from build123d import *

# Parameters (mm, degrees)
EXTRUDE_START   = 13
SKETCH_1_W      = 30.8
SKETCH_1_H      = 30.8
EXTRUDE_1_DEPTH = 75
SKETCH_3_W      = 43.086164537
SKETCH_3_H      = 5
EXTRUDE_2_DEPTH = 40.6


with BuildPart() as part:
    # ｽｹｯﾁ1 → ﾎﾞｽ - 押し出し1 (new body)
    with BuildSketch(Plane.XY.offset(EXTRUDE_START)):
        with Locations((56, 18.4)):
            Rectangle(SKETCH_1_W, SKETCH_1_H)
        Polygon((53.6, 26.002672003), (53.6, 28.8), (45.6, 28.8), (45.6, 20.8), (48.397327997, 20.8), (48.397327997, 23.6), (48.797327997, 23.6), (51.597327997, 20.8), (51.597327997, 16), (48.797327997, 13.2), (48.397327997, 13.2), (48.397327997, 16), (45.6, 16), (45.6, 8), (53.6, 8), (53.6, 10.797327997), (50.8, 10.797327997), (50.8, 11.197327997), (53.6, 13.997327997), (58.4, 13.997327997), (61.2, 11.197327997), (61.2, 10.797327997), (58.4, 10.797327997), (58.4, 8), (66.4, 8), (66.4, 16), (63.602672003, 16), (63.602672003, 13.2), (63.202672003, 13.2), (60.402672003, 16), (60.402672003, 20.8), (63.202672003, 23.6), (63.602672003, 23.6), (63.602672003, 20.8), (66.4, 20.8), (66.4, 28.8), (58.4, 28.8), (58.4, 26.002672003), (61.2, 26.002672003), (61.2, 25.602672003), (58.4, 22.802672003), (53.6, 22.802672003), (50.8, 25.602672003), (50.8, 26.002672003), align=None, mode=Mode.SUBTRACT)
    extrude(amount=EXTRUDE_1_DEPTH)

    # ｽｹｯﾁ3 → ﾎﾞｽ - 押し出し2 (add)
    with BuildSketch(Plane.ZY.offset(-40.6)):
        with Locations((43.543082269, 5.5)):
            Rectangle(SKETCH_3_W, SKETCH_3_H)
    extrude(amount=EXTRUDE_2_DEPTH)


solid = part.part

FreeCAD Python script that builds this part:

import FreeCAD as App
import Part
import Sketcher
Q = App.Units.Quantity

doc = App.newDocument("Part")
body = doc.addObject("PartDesign::Body", "Body")

# Sketch on XY plane
sketch1 = doc.addObject("Sketcher::SketchObject", "Sketch")
body.addObject(sketch1)
sketch1.AttachmentSupport = (doc.XY_Plane, [""])
sketch1.MapMode = "FlatFace"
sketch1.AttachmentOffset = App.Placement(App.Vector(0, 0, 13), App.Rotation())
sketch1.addGeometry(Part.LineSegment(App.Vector(40.6, 33.8, 0), App.Vector(40.6, 3, 0)), False)
sketch1.addGeometry(Part.LineSegment(App.Vector(40.6, 3, 0), App.Vector(71.4, 3, 0)), False)
sketch1.addGeometry(Part.LineSegment(App.Vector(71.4, 3, 0), App.Vector(71.4, 33.8, 0)), False)
sketch1.addGeometry(Part.LineSegment(App.Vector(71.4, 33.8, 0), App.Vector(40.6, 33.8, 0)), False)
sketch1.addGeometry(Part.LineSegment(App.Vector(53.6, 28.8, 0), App.Vector(53.6, 26.002672, 0)), False)
sketch1.addGeometry(Part.LineSegment(App.Vector(53.6, 26.002672, 0), App.Vector(50.8, 26.002672, 0)), False)
sketch1.addGeometry(Part.LineSegment(App.Vector(50.8, 26.002672, 0), App.Vector(50.8, 25.602672, 0)), False)
sketch1.addGeometry(Part.LineSegment(App.Vector(50.8, 25.602672, 0), App.Vector(53.6, 22.802672, 0)), False)
sketch1.addGeometry(Part.LineSegment(App.Vector(53.6, 22.802672, 0), App.Vector(58.4, 22.802672, 0)), False)
sketch1.addGeometry(Part.LineSegment(App.Vector(58.4, 22.802672, 0), App.Vector(61.2, 25.602672, 0)), False)
sketch1.addGeometry(Part.LineSegment(App.Vector(61.2, 25.602672, 0), App.Vector(61.2, 26.002672, 0)), False)
sketch1.addGeometry(Part.LineSegment(App.Vector(61.2, 26.002672, 0), App.Vector(58.4, 26.002672, 0)), False)
sketch1.addGeometry(Part.LineSegment(App.Vector(58.4, 26.002672, 0), App.Vector(58.4, 28.8, 0)), False)
sketch1.addGeometry(Part.LineSegment(App.Vector(58.4, 28.8, 0), App.Vector(66.4, 28.8, 0)), False)
sketch1.addGeometry(Part.LineSegment(App.Vector(66.4, 28.8, 0), App.Vector(66.4, 20.8, 0)), False)
sketch1.addGeometry(Part.LineSegment(App.Vector(66.4, 20.8, 0), App.Vector(63.602672, 20.8, 0)), False)
sketch1.addGeometry(Part.LineSegment(App.Vector(63.602672, 20.8, 0), App.Vector(63.602672, 23.6, 0)), False)
sketch1.addGeometry(Part.LineSegment(App.Vector(63.602672, 23.6, 0), App.Vector(63.202672, 23.6, 0)), False)
sketch1.addGeometry(Part.LineSegment(App.Vector(63.202672, 23.6, 0), App.Vector(60.402672, 20.8, 0)), False)
sketch1.addGeometry(Part.LineSegment(App.Vector(60.402672, 20.8, 0), App.Vector(60.402672, 16, 0)), False)
sketch1.addGeometry(Part.LineSegment(App.Vector(60.402672, 16, 0), App.Vector(63.202672, 13.2, 0)), False)
sketch1.addGeometry(Part.LineSegment(App.Vector(63.202672, 13.2, 0), App.Vector(63.602672, 13.2, 0)), False)
sketch1.addGeometry(Part.LineSegment(App.Vector(63.602672, 13.2, 0), App.Vector(63.602672, 16, 0)), False)
sketch1.addGeometry(Part.LineSegment(App.Vector(63.602672, 16, 0), App.Vector(66.4, 16, 0)), False)
sketch1.addGeometry(Part.LineSegment(App.Vector(66.4, 16, 0), App.Vector(66.4, 8, 0)), False)
sketch1.addGeometry(Part.LineSegment(App.Vector(66.4, 8, 0), App.Vector(58.4, 8, 0)), False)
sketch1.addGeometry(Part.LineSegment(App.Vector(58.4, 8, 0), App.Vector(58.4, 10.797328, 0)), False)
sketch1.addGeometry(Part.LineSegment(App.Vector(58.4, 10.797328, 0), App.Vector(61.2, 10.797328, 0)), False)
sketch1.addGeometry(Part.LineSegment(App.Vector(61.2, 10.797328, 0), App.Vector(61.2, 11.197328, 0)), False)
sketch1.addGeometry(Part.LineSegment(App.Vector(61.2, 11.197328, 0), App.Vector(58.4, 13.997328, 0)), False)
sketch1.addGeometry(Part.LineSegment(App.Vector(58.4, 13.997328, 0), App.Vector(53.6, 13.997328, 0)), False)
sketch1.addGeometry(Part.LineSegment(App.Vector(53.6, 13.997328, 0), App.Vector(50.8, 11.197328, 0)), False)
sketch1.addGeometry(Part.LineSegment(App.Vector(50.8, 11.197328, 0), App.Vector(50.8, 10.797328, 0)), False)
sketch1.addGeometry(Part.LineSegment(App.Vector(50.8, 10.797328, 0), App.Vector(53.6, 10.797328, 0)), False)
sketch1.addGeometry(Part.LineSegment(App.Vector(53.6, 10.797328, 0), App.Vector(53.6, 8, 0)), False)
sketch1.addGeometry(Part.LineSegment(App.Vector(53.6, 8, 0), App.Vector(45.6, 8, 0)), False)
sketch1.addGeometry(Part.LineSegment(App.Vector(45.6, 8, 0), App.Vector(45.6, 16, 0)), False)
sketch1.addGeometry(Part.LineSegment(App.Vector(45.6, 16, 0), App.Vector(48.397328, 16, 0)), False)
sketch1.addGeometry(Part.LineSegment(App.Vector(48.397328, 16, 0), App.Vector(48.397328, 13.2, 0)), False)
sketch1.addGeometry(Part.LineSegment(App.Vector(48.397328, 13.2, 0), App.Vector(48.797328, 13.2, 0)), False)
sketch1.addGeometry(Part.LineSegment(App.Vector(48.797328, 13.2, 0), App.Vector(51.597328, 16, 0)), False)
sketch1.addGeometry(Part.LineSegment(App.Vector(51.597328, 16, 0), App.Vector(51.597328, 20.8, 0)), False)
sketch1.addGeometry(Part.LineSegment(App.Vector(51.597328, 20.8, 0), App.Vector(48.797328, 23.6, 0)), False)
sketch1.addGeometry(Part.LineSegment(App.Vector(48.797328, 23.6, 0), App.Vector(48.397328, 23.6, 0)), False)
sketch1.addGeometry(Part.LineSegment(App.Vector(48.397328, 23.6, 0), App.Vector(48.397328, 20.8, 0)), False)
sketch1.addGeometry(Part.LineSegment(App.Vector(48.397328, 20.8, 0), App.Vector(45.6, 20.8, 0)), False)
sketch1.addGeometry(Part.LineSegment(App.Vector(45.6, 20.8, 0), App.Vector(45.6, 28.8, 0)), False)
sketch1.addGeometry(Part.LineSegment(App.Vector(45.6, 28.8, 0), App.Vector(53.6, 28.8, 0)), False)
sketch1.addConstraint(Sketcher.Constraint("Coincident", 0, 2, 1, 1))
sketch1.addConstraint(Sketcher.Constraint("Coincident", 1, 2, 2, 1))
sketch1.addConstraint(Sketcher.Constraint("Coincident", 2, 2, 3, 1))
sketch1.addConstraint(Sketcher.Constraint("Coincident", 3, 2, 0, 1))
sketch1.addConstraint(Sketcher.Constraint("Coincident", 4, 2, 5, 1))
sketch1.addConstraint(Sketcher.Constraint("Coincident", 5, 2, 6, 1))
sketch1.addConstraint(Sketcher.Constraint("Coincident", 6, 2, 7, 1))
sketch1.addConstraint(Sketcher.Constraint("Coincident", 7, 2, 8, 1))
sketch1.addConstraint(Sketcher.Constraint("Coincident", 8, 2, 9, 1))
sketch1.addConstraint(Sketcher.Constraint("Coincident", 9, 2, 10, 1))
sketch1.addConstraint(Sketcher.Constraint("Coincident", 10, 2, 11, 1))
sketch1.addConstraint(Sketcher.Constraint("Coincident", 11, 2, 12, 1))
sketch1.addConstraint(Sketcher.Constraint("Coincident", 12, 2, 13, 1))
sketch1.addConstraint(Sketcher.Constraint("Coincident", 13, 2, 14, 1))
sketch1.addConstraint(Sketcher.Constraint("Coincident", 14, 2, 15, 1))
sketch1.addConstraint(Sketcher.Constraint("Coincident", 15, 2, 16, 1))
sketch1.addConstraint(Sketcher.Constraint("Coincident", 16, 2, 17, 1))
sketch1.addConstraint(Sketcher.Constraint("Coincident", 17, 2, 18, 1))
sketch1.addConstraint(Sketcher.Constraint("Coincident", 18, 2, 19, 1))
sketch1.addConstraint(Sketcher.Constraint("Coincident", 19, 2, 20, 1))
sketch1.addConstraint(Sketcher.Constraint("Coincident", 20, 2, 21, 1))
sketch1.addConstraint(Sketcher.Constraint("Coincident", 21, 2, 22, 1))
sketch1.addConstraint(Sketcher.Constraint("Coincident", 22, 2, 23, 1))
sketch1.addConstraint(Sketcher.Constraint("Coincident", 23, 2, 24, 1))
sketch1.addConstraint(Sketcher.Constraint("Coincident", 24, 2, 25, 1))
sketch1.addConstraint(Sketcher.Constraint("Coincident", 25, 2, 26, 1))
sketch1.addConstraint(Sketcher.Constraint("Coincident", 26, 2, 27, 1))
sketch1.addConstraint(Sketcher.Constraint("Coincident", 27, 2, 28, 1))
sketch1.addConstraint(Sketcher.Constraint("Coincident", 28, 2, 29, 1))
sketch1.addConstraint(Sketcher.Constraint("Coincident", 29, 2, 30, 1))
sketch1.addConstraint(Sketcher.Constraint("Coincident", 30, 2, 31, 1))
sketch1.addConstraint(Sketcher.Constraint("Coincident", 31, 2, 32, 1))
sketch1.addConstraint(Sketcher.Constraint("Coincident", 32, 2, 33, 1))
sketch1.addConstraint(Sketcher.Constraint("Coincident", 33, 2, 34, 1))
sketch1.addConstraint(Sketcher.Constraint("Coincident", 34, 2, 35, 1))
sketch1.addConstraint(Sketcher.Constraint("Coincident", 35, 2, 36, 1))
sketch1.addConstraint(Sketcher.Constraint("Coincident", 36, 2, 37, 1))
sketch1.addConstraint(Sketcher.Constraint("Coincident", 37, 2, 38, 1))
sketch1.addConstraint(Sketcher.Constraint("Coincident", 38, 2, 39, 1))
sketch1.addConstraint(Sketcher.Constraint("Coincident", 39, 2, 40, 1))
sketch1.addConstraint(Sketcher.Constraint("Coincident", 40, 2, 41, 1))
sketch1.addConstraint(Sketcher.Constraint("Coincident", 41, 2, 42, 1))
sketch1.addConstraint(Sketcher.Constraint("Coincident", 42, 2, 43, 1))
sketch1.addConstraint(Sketcher.Constraint("Coincident", 43, 2, 44, 1))
sketch1.addConstraint(Sketcher.Constraint("Coincident", 44, 2, 45, 1))
sketch1.addConstraint(Sketcher.Constraint("Coincident", 45, 2, 46, 1))
sketch1.addConstraint(Sketcher.Constraint("Coincident", 46, 2, 47, 1))
sketch1.addConstraint(Sketcher.Constraint("Coincident", 47, 2, 4, 1))
sketch1.addConstraint(Sketcher.Constraint("Vertical", 0))
sketch1.addConstraint(Sketcher.Constraint("Horizontal", 1))
sketch1.addConstraint(Sketcher.Constraint("Vertical", 2))
sketch1.addConstraint(Sketcher.Constraint("Horizontal", 3))
sketch1.addConstraint(Sketcher.Constraint("Vertical", 4))
sketch1.addConstraint(Sketcher.Constraint("Horizontal", 5))
sketch1.addConstraint(Sketcher.Constraint("Vertical", 6))
sketch1.addConstraint(Sketcher.Constraint("Horizontal", 8))
sketch1.addConstraint(Sketcher.Constraint("Vertical", 10))
sketch1.addConstraint(Sketcher.Constraint("Horizontal", 11))
sketch1.addConstraint(Sketcher.Constraint("Vertical", 12))
sketch1.addConstraint(Sketcher.Constraint("Horizontal", 13))
sketch1.addConstraint(Sketcher.Constraint("Vertical", 14))
sketch1.addConstraint(Sketcher.Constraint("Horizontal", 15))
sketch1.addConstraint(Sketcher.Constraint("Vertical", 16))
sketch1.addConstraint(Sketcher.Constraint("Horizontal", 17))
sketch1.addConstraint(Sketcher.Constraint("Vertical", 19))
sketch1.addConstraint(Sketcher.Constraint("Horizontal", 21))
sketch1.addConstraint(Sketcher.Constraint("Vertical", 22))
sketch1.addConstraint(Sketcher.Constraint("Horizontal", 23))
sketch1.addConstraint(Sketcher.Constraint("Vertical", 24))
sketch1.addConstraint(Sketcher.Constraint("Horizontal", 25))
sketch1.addConstraint(Sketcher.Constraint("Vertical", 26))
sketch1.addConstraint(Sketcher.Constraint("Horizontal", 27))
sketch1.addConstraint(Sketcher.Constraint("Vertical", 28))
sketch1.addConstraint(Sketcher.Constraint("Horizontal", 30))
sketch1.addConstraint(Sketcher.Constraint("Vertical", 32))
sketch1.addConstraint(Sketcher.Constraint("Horizontal", 33))
sketch1.addConstraint(Sketcher.Constraint("Vertical", 34))
sketch1.addConstraint(Sketcher.Constraint("Horizontal", 35))
sketch1.addConstraint(Sketcher.Constraint("Vertical", 36))
sketch1.addConstraint(Sketcher.Constraint("Horizontal", 37))
sketch1.addConstraint(Sketcher.Constraint("Vertical", 38))
sketch1.addConstraint(Sketcher.Constraint("Horizontal", 39))
sketch1.addConstraint(Sketcher.Constraint("Vertical", 41))
sketch1.addConstraint(Sketcher.Constraint("Horizontal", 43))
sketch1.addConstraint(Sketcher.Constraint("Vertical", 44))
sketch1.addConstraint(Sketcher.Constraint("Horizontal", 45))
sketch1.addConstraint(Sketcher.Constraint("Vertical", 46))
sketch1.addConstraint(Sketcher.Constraint("Horizontal", 47))
sketch1.addConstraint(Sketcher.Constraint("Perpendicular", 7, 9))
sketch1.addConstraint(Sketcher.Constraint("Parallel", 9, 18))
sketch1.addConstraint(Sketcher.Constraint("Perpendicular", 18, 20))
sketch1.addConstraint(Sketcher.Constraint("Parallel", 20, 29))
sketch1.addConstraint(Sketcher.Constraint("Perpendicular", 29, 31))
sketch1.addConstraint(Sketcher.Constraint("Parallel", 31, 40))
sketch1.addConstraint(Sketcher.Constraint("Perpendicular", 40, 42))
sketch1.addConstraint(Sketcher.Constraint("Horizontal", 6, 2, 9, 2))
sketch1.addConstraint(Sketcher.Constraint("Horizontal", 5, 2, 10, 2))
sketch1.addConstraint(Sketcher.Constraint("Horizontal", 15, 2, 18, 2))
sketch1.addConstraint(Sketcher.Constraint("Horizontal", 19, 2, 22, 2))
sketch1.addConstraint(Sketcher.Constraint("Horizontal", 28, 2, 31, 2))
sketch1.addConstraint(Sketcher.Constraint("Horizontal", 27, 2, 32, 2))
sketch1.addConstraint(Sketcher.Constraint("Horizontal", 25, 2, 34, 2))
sketch1.addConstraint(Sketcher.Constraint("Horizontal", 23, 2, 36, 2))
sketch1.addConstraint(Sketcher.Constraint("Horizontal", 21, 2, 38, 2))
sketch1.addConstraint(Sketcher.Constraint("Horizontal", 37, 2, 40, 2))
sketch1.addConstraint(Sketcher.Constraint("Horizontal", 18, 2, 41, 2))
sketch1.addConstraint(Sketcher.Constraint("Horizontal", 17, 2, 42, 2))
sketch1.addConstraint(Sketcher.Constraint("Horizontal", 41, 2, 44, 2))
sketch1.addConstraint(Sketcher.Constraint("Horizontal", 13, 2, 46, 2))
sketch1.addConstraint(Sketcher.Constraint("Vertical", 4, 2, 7, 2))
sketch1.addConstraint(Sketcher.Constraint("Vertical", 8, 2, 11, 2))
sketch1.addConstraint(Sketcher.Constraint("Vertical", 17, 2, 20, 2))
sketch1.addConstraint(Sketcher.Constraint("Vertical", 16, 2, 21, 2))
sketch1.addConstraint(Sketcher.Constraint("Vertical", 14, 2, 23, 2))
sketch1.addConstraint(Sketcher.Constraint("Vertical", 12, 2, 25, 2))
sketch1.addConstraint(Sketcher.Constraint("Vertical", 10, 2, 27, 2))
sketch1.addConstraint(Sketcher.Constraint("Vertical", 26, 2, 29, 2))
sketch1.addConstraint(Sketcher.Constraint("Vertical", 7, 2, 30, 2))
sketch1.addConstraint(Sketcher.Constraint("Vertical", 6, 2, 31, 2))
sketch1.addConstraint(Sketcher.Constraint("Vertical", 30, 2, 33, 2))
sketch1.addConstraint(Sketcher.Constraint("Vertical", 38, 2, 43, 2))
sketch1.addConstraint(Sketcher.Constraint("Vertical", 36, 2, 45, 2))
sketch1.addConstraint(Sketcher.Constraint("Equal", 25, 35))
sketch1.addConstraint(Sketcher.Constraint("Equal", 23, 37))
sketch1.addConstraint(Sketcher.Constraint("Equal", 21, 39))
sketch1.addConstraint(Sketcher.Constraint("Equal", 3, 0))
sketch1.addConstraint(Sketcher.Constraint("Equal", 45, 4))
sketch1.addConstraint(Sketcher.Constraint("Equal", 43, 6))
sketch1.addConstraint(Sketcher.Constraint("Equal", 47, 14))
sketch1.addConstraint(Sketcher.Constraint("Equal", 33, 16))
sketch1.addConstraint(Sketcher.Constraint("Equal", 30, 19))
sketch1.addConstraint(Sketcher.Constraint("Equal", 14, 24))
sketch1.addConstraint(Sketcher.Constraint("Equal", 12, 26))
sketch1.addConstraint(Sketcher.Constraint("Equal", 10, 28))
sketch1.addConstraint(Sketcher.Constraint("DistanceX", 13, 1, 13, 2, Q("8 mm")))
sketch1.addConstraint(Sketcher.Constraint("DistanceX", 1, 1, 1, 2, Q("30.8 mm")))
sketch1.addConstraint(Sketcher.Constraint("DistanceX", 5, 2, 5, 1, Q("2.8 mm")))
sketch1.addConstraint(Sketcher.Constraint("DistanceX", 8, 1, 8, 2, Q("4.8 mm")))
sketch1.addConstraint(Sketcher.Constraint("DistanceX", 17, 2, 17, 1, Q("0.4 mm")))
sketch1.addConstraint(Sketcher.Constraint("DistanceY", -1, 1, 0, 2, Q("3 mm")))
sketch1.addConstraint(Sketcher.Constraint("DistanceY", -1, 1, 19, 2, Q("16 mm")))
sketch1.addConstraint(Sketcher.Constraint("DistanceX", 3, 2, 4, 2, Q("13 mm")))
sketch1.addConstraint(Sketcher.Constraint("DistanceX", -1, 1, 0, 2, Q("40.6 mm")))
sketch1.addConstraint(Sketcher.Constraint("DistanceX", 15, 2, 15, 1, Q("2.797328 mm")))
pad1 = doc.addObject("PartDesign::Pad", "Pad")
body.addObject(pad1)
pad1.Profile = sketch1
pad1.Length = 75

# Sketch on YZ plane
sketch2 = doc.addObject("Sketcher::SketchObject", "Sketch001")
body.addObject(sketch2)
sketch2.AttachmentSupport = (doc.YZ_Plane, [""])
sketch2.MapMode = "FlatFace"
sketch2.AttachmentOffset = App.Placement(App.Vector(0, 0, 40.6), App.Rotation())
sketch2.addGeometry(Part.LineSegment(App.Vector(8, 22, 0), App.Vector(3, 22, 0)), False)
sketch2.addGeometry(Part.LineSegment(App.Vector(3, 22, 0), App.Vector(3, 65.086165, 0)), False)
sketch2.addGeometry(Part.LineSegment(App.Vector(3, 65.086165, 0), App.Vector(8, 65.086165, 0)), False)
sketch2.addGeometry(Part.LineSegment(App.Vector(8, 65.086165, 0), App.Vector(8, 22, 0)), False)
sketch2.addConstraint(Sketcher.Constraint("Coincident", 0, 2, 1, 1))
sketch2.addConstraint(Sketcher.Constraint("Coincident", 1, 2, 2, 1))
sketch2.addConstraint(Sketcher.Constraint("Coincident", 2, 2, 3, 1))
sketch2.addConstraint(Sketcher.Constraint("Coincident", 3, 2, 0, 1))
sketch2.addConstraint(Sketcher.Constraint("Horizontal", 0))
sketch2.addConstraint(Sketcher.Constraint("Vertical", 1))
sketch2.addConstraint(Sketcher.Constraint("Horizontal", 2))
sketch2.addConstraint(Sketcher.Constraint("Vertical", 3))
sketch2.addConstraint(Sketcher.Constraint("DistanceX", 0, 2, 0, 1, Q("5 mm")))
sketch2.addConstraint(Sketcher.Constraint("DistanceX", -1, 1, 0, 2, Q("3 mm")))
sketch2.addConstraint(Sketcher.Constraint("DistanceY", -1, 1, 0, 2, Q("22 mm")))
sketch2.addConstraint(Sketcher.Constraint("DistanceY", 1, 1, 1, 2, Q("43.086165 mm")))
pad2 = doc.addObject("PartDesign::Pad", "Pad001")
body.addObject(pad2)
pad2.Profile = sketch2
pad2.Length = 40.6
pad2.Reversed = True

doc.recompute()
